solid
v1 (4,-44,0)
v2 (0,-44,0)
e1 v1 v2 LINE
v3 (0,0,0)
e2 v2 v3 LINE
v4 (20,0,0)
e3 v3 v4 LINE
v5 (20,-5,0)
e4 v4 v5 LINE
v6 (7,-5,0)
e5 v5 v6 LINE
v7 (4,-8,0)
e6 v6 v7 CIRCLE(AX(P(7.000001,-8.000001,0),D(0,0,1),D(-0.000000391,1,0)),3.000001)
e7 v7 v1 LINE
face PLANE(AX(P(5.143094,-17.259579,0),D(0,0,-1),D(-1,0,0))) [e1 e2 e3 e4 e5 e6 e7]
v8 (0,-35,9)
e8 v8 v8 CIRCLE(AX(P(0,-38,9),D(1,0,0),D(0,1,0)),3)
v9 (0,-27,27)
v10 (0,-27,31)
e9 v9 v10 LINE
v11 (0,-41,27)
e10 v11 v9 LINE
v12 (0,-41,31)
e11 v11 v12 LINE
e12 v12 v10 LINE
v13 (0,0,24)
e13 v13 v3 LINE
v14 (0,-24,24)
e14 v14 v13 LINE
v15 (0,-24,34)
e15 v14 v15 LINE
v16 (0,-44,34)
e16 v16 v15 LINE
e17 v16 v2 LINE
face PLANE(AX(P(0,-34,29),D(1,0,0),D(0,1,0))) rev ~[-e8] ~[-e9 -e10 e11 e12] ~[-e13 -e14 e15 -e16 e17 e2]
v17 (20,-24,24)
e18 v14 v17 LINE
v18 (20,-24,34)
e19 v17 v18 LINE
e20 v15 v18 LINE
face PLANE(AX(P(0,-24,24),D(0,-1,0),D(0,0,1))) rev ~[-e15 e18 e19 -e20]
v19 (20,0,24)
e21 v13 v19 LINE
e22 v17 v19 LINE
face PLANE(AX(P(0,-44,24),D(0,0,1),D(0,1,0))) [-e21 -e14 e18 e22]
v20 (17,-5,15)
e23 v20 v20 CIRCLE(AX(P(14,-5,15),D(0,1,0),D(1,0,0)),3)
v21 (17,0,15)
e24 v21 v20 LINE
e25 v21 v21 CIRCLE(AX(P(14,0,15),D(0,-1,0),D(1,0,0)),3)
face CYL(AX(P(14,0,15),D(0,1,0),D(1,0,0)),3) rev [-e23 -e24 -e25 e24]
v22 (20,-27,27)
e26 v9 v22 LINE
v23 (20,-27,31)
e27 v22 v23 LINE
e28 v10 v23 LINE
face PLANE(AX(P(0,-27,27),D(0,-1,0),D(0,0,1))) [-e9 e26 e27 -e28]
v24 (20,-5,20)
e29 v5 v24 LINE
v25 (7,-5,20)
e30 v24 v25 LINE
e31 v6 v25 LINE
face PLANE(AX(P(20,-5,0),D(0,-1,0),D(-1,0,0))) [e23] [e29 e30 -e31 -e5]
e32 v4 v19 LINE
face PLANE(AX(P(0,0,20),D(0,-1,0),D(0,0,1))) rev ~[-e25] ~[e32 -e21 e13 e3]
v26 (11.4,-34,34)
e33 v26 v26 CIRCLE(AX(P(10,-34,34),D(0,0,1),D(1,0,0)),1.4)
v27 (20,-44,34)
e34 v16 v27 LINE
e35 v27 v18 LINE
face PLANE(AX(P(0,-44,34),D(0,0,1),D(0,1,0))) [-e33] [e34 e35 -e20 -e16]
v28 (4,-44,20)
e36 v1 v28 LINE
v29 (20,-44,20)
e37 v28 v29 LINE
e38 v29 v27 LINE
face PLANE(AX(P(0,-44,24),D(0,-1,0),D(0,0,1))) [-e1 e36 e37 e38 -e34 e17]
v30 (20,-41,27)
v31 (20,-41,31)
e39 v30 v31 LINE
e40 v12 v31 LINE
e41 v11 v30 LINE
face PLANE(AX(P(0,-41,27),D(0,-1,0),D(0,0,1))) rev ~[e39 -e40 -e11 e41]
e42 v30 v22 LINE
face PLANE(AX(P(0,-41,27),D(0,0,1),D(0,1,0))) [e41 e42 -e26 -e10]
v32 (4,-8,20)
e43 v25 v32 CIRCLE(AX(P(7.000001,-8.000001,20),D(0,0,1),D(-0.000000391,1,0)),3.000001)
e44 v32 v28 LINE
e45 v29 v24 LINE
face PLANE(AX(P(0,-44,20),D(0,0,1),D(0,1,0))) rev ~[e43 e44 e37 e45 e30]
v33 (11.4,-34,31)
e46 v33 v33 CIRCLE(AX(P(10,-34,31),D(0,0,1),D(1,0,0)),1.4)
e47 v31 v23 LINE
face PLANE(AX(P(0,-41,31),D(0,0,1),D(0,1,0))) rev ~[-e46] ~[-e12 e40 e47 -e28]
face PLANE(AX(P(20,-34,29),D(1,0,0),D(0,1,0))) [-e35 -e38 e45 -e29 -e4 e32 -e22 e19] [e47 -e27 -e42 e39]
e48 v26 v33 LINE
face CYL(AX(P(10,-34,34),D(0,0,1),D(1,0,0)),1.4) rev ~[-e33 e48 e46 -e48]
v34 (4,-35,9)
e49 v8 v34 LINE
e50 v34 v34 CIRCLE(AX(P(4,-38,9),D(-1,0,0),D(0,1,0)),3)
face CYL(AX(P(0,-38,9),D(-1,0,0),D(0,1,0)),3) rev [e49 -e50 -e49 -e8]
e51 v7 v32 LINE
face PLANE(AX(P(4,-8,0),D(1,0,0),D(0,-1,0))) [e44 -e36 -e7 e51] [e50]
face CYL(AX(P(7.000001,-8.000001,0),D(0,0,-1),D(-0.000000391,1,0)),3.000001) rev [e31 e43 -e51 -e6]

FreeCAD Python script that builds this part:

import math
import FreeCAD as App
import Part
import Sketcher


def add_polygon(sketch, points):
    """Adds a closed chain of lines whose ends are joined by coincident constraints."""
    first, n = sketch.GeometryCount, len(points)
    for a, b in zip(points, points[1:] + points[:1]):
        sketch.addGeometry(Part.LineSegment(App.Vector(*a, 0), App.Vector(*b, 0)), False)
    for i in range(n):
        sketch.addConstraint(Sketcher.Constraint("Coincident", first + i, 2, first + (i + 1) % n, 1))

doc = App.newDocument("Part")
body = doc.addObject("PartDesign::Body", "Body")

# Sketch on XY plane
sketch1 = body.newObject("Sketcher::SketchObject", "Sketch")
sketch1.AttachmentSupport = (doc.getObject("XY_Plane"), [""])
sketch1.MapMode = "FlatFace"
sketch1.addGeometry(Part.LineSegment(App.Vector(0, 0, 0), App.Vector(0, -44, 0)), False)
sketch1.addGeometry(Part.LineSegment(App.Vector(0, -44, 0), App.Vector(4, -44, 0)), False)
sketch1.addGeometry(Part.LineSegment(App.Vector(4, -44, 0), App.Vector(4, -8, 0)), False)
sketch1.addGeometry(Part.ArcOfCircle(Part.Circle(App.Vector(7, -8, 0), App.Vector(0, 0, 1), 3), math.radians(90), math.radians(180)), False)
sketch1.addGeometry(Part.LineSegment(App.Vector(7, -5, 0), App.Vector(20, -5, 0)), False)
sketch1.addGeometry(Part.LineSegment(App.Vector(20, -5, 0), App.Vector(20, 0, 0)), False)
sketch1.addGeometry(Part.LineSegment(App.Vector(20, 0, 0), App.Vector(0, 0, 0)), False)
sketch1.addConstraint(Sketcher.Constraint("Coincident", 0, 2, 1, 1))
sketch1.addConstraint(Sketcher.Constraint("Coincident", 1, 2, 2, 1))
sketch1.addConstraint(Sketcher.Constraint("Tangent", 2, 2, 3, 2))
sketch1.addConstraint(Sketcher.Constraint("Tangent", 3, 1, 4, 1))
sketch1.addConstraint(Sketcher.Constraint("Coincident", 4, 2, 5, 1))
sketch1.addConstraint(Sketcher.Constraint("Coincident", 5, 2, 6, 1))
sketch1.addConstraint(Sketcher.Constraint("Coincident", 6, 2, 0, 1))
sketch1.addConstraint(Sketcher.Constraint("Vertical", 0))
sketch1.addConstraint(Sketcher.Constraint("Horizontal", 1))
sketch1.addConstraint(Sketcher.Constraint("Vertical", 2))
sketch1.addConstraint(Sketcher.Constraint("Horizontal", 4))
sketch1.addConstraint(Sketcher.Constraint("Vertical", 5))
sketch1.addConstraint(Sketcher.Constraint("Horizontal", 6))
sketch1.addConstraint(Sketcher.Constraint("Coincident", 6, 2, -1, 1))
sketch1.addConstraint(Sketcher.Constraint("Radius", 3, 3.000001))
sketch1.addConstraint(Sketcher.Constraint("DistanceX", 1, 1, 1, 2, 4.0))
sketch1.addConstraint(Sketcher.Constraint("DistanceX", 4, 1, 4, 2, 13.0))
sketch1.addConstraint(Sketcher.Constraint("DistanceY", 0, 2, 0, 1, 44.0))
sketch1.addConstraint(Sketcher.Constraint("DistanceY", 2, 1, 2, 2, 36.0))
pad1 = body.newObject("PartDesign::Pad", "Pad")
pad1.Profile = sketch1
pad1.Length = 20

# Sketch on XZ plane
sketch2 = body.newObject("Sketcher::SketchObject", "Sketch001")
sketch2.AttachmentSupport = (doc.getObject("XZ_Plane"), [""])
sketch2.MapMode = "FlatFace"
sketch2.addGeometry(Part.Circle(App.Vector(14, 15, 0), App.Vector(0, 0, 1), 3), False)
sketch2.addConstraint(Sketcher.Constraint("Diameter", 0, 6.0))
sketch2.addConstraint(Sketcher.Constraint("DistanceX", -1, 1, 0, 3, 14.0))
sketch2.addConstraint(Sketcher.Constraint("DistanceY", -1, 1, 0, 3, 15.0))
pocket1 = body.newObject("PartDesign::Pocket", "Pocket")
pocket1.Profile = sketch2
pocket1.Type = "ThroughAll"
pocket1.Reversed = True

# Sketch on YZ plane
sketch3 = body.newObject("Sketcher::SketchObject", "Sketch002")
sketch3.AttachmentSupport = (doc.getObject("YZ_Plane"), [""])
sketch3.MapMode = "FlatFace"
sketch3.addGeometry(Part.Circle(App.Vector(-38, 9, 0), App.Vector(0, 0, 1), 3), False)
sketch3.addConstraint(Sketcher.Constraint("Diameter", 0, 6.0))
sketch3.addConstraint(Sketcher.Constraint("DistanceX", 0, 3, -1, 1, 38.0))
sketch3.addConstraint(Sketcher.Constraint("DistanceY", -1, 1, 0, 3, 9.0))
pocket2 = body.newObject("PartDesign::Pocket", "Pocket001")
pocket2.Profile = sketch3
pocket2.Length = 5
pocket2.Reversed = True

# Sketch on YZ plane
sketch4 = body.newObject("Sketcher::SketchObject", "Sketch003")
sketch4.AttachmentSupport = (doc.getObject("YZ_Plane"), [""])
sketch4.MapMode = "FlatFace"
add_polygon(sketch4, [(-44, 24), (-44, 20), (0, 20), (0, 24)])  # lines 0-3
sketch4.addConstraint(Sketcher.Constraint("Vertical", 0))
sketch4.addConstraint(Sketcher.Constraint("Horizontal", 1))
sketch4.addConstraint(Sketcher.Constraint("Vertical", 2))
sketch4.addConstraint(Sketcher.Constraint("Horizontal", 3))
sketch4.addConstraint(Sketcher.Constraint("PointOnObject", 1, 2, -2))
sketch4.addConstraint(Sketcher.Constraint("DistanceX", 1, 1, 1, 2, 44.0))
sketch4.addConstraint(Sketcher.Constraint("DistanceY", 0, 2, 0, 1, 4.0))
sketch4.addConstraint(Sketcher.Constraint("DistanceY", -1, 1, 0, 2, 20.0))
pad2 = body.newObject("PartDesign::Pad", "Pad001")
pad2.Profile = sketch4
pad2.Length = 20

# Sketch on YZ plane
sketch5 = body.newObject("Sketcher::SketchObject", "Sketch004")
sketch5.AttachmentSupport = (doc.getObject("YZ_Plane"), [""])
sketch5.MapMode = "FlatFace"
add_polygon(sketch5, [(-44, 34), (-44, 24), (-24, 24), (-24, 34)])  # lines 0-3
add_polygon(sketch5, [(-27, 27), (-41, 27), (-41, 31), (-27, 31)])  # lines 4-7
sketch5.addConstraint(Sketcher.Constraint("Vertical", 0))
sketch5.addConstraint(Sketcher.Constraint("Horizontal", 1))
sketch5.addConstraint(Sketcher.Constraint("Vertical", 2))
sketch5.addConstraint(Sketcher.Constraint("Horizontal", 3))
sketch5.addConstraint(Sketcher.Constraint("Horizontal", 4))
sketch5.addConstraint(Sketcher.Constraint("Vertical", 5))
sketch5.addConstraint(Sketcher.Constraint("Horizontal", 6))
sketch5.addConstraint(Sketcher.Constraint("Vertical", 7))
sketch5.addConstraint(Sketcher.Constraint("DistanceX", 1, 1, 1, 2, 20.0))
sketch5.addConstraint(Sketcher.Constraint("DistanceX", 4, 2, 4, 1, 14.0))
sketch5.addConstraint(Sketcher.Constraint("DistanceY", 0, 2, 0, 1, 10.0))
sketch5.addConstraint(Sketcher.Constraint("DistanceY", 5, 1, 5, 2, 4.0))
sketch5.addConstraint(Sketcher.Constraint("DistanceX", 0, 2, -1, 1, 44.0))
sketch5.addConstraint(Sketcher.Constraint("DistanceY", -1, 1, 0, 2, 24.0))
sketch5.addConstraint(Sketcher.Constraint("DistanceX", 4, 2, -1, 1, 41.0))
sketch5.addConstraint(Sketcher.Constraint("DistanceY", -1, 1, 4, 2, 27.0))
pad3 = body.newObject("PartDesign::Pad", "Pad002")
pad3.Profile = sketch5
pad3.Length = 20

# Sketch on XY plane
sketch6 = body.newObject("Sketcher::SketchObject", "Sketch005")
sketch6.AttachmentSupport = (doc.getObject("XY_Plane"), [""])
sketch6.MapMode = "FlatFace"
sketch6.AttachmentOffset = App.Placement(App.Vector(0, 0, 34), App.Rotation())
sketch6.addGeometry(Part.Circle(App.Vector(10, -34, 0), App.Vector(0, 0, 1), 1.4), False)
sketch6.addConstraint(Sketcher.Constraint("Diameter", 0, 2.8))
sketch6.addConstraint(Sketcher.Constraint("DistanceX", -1, 1, 0, 3, 10.0))
sketch6.addConstraint(Sketcher.Constraint("DistanceY", 0, 3, -1, 1, 34.0))
pocket3 = body.newObject("PartDesign::Pocket", "Pocket002")
pocket3.Profile = sketch6
pocket3.Length = 3

doc.recompute()
